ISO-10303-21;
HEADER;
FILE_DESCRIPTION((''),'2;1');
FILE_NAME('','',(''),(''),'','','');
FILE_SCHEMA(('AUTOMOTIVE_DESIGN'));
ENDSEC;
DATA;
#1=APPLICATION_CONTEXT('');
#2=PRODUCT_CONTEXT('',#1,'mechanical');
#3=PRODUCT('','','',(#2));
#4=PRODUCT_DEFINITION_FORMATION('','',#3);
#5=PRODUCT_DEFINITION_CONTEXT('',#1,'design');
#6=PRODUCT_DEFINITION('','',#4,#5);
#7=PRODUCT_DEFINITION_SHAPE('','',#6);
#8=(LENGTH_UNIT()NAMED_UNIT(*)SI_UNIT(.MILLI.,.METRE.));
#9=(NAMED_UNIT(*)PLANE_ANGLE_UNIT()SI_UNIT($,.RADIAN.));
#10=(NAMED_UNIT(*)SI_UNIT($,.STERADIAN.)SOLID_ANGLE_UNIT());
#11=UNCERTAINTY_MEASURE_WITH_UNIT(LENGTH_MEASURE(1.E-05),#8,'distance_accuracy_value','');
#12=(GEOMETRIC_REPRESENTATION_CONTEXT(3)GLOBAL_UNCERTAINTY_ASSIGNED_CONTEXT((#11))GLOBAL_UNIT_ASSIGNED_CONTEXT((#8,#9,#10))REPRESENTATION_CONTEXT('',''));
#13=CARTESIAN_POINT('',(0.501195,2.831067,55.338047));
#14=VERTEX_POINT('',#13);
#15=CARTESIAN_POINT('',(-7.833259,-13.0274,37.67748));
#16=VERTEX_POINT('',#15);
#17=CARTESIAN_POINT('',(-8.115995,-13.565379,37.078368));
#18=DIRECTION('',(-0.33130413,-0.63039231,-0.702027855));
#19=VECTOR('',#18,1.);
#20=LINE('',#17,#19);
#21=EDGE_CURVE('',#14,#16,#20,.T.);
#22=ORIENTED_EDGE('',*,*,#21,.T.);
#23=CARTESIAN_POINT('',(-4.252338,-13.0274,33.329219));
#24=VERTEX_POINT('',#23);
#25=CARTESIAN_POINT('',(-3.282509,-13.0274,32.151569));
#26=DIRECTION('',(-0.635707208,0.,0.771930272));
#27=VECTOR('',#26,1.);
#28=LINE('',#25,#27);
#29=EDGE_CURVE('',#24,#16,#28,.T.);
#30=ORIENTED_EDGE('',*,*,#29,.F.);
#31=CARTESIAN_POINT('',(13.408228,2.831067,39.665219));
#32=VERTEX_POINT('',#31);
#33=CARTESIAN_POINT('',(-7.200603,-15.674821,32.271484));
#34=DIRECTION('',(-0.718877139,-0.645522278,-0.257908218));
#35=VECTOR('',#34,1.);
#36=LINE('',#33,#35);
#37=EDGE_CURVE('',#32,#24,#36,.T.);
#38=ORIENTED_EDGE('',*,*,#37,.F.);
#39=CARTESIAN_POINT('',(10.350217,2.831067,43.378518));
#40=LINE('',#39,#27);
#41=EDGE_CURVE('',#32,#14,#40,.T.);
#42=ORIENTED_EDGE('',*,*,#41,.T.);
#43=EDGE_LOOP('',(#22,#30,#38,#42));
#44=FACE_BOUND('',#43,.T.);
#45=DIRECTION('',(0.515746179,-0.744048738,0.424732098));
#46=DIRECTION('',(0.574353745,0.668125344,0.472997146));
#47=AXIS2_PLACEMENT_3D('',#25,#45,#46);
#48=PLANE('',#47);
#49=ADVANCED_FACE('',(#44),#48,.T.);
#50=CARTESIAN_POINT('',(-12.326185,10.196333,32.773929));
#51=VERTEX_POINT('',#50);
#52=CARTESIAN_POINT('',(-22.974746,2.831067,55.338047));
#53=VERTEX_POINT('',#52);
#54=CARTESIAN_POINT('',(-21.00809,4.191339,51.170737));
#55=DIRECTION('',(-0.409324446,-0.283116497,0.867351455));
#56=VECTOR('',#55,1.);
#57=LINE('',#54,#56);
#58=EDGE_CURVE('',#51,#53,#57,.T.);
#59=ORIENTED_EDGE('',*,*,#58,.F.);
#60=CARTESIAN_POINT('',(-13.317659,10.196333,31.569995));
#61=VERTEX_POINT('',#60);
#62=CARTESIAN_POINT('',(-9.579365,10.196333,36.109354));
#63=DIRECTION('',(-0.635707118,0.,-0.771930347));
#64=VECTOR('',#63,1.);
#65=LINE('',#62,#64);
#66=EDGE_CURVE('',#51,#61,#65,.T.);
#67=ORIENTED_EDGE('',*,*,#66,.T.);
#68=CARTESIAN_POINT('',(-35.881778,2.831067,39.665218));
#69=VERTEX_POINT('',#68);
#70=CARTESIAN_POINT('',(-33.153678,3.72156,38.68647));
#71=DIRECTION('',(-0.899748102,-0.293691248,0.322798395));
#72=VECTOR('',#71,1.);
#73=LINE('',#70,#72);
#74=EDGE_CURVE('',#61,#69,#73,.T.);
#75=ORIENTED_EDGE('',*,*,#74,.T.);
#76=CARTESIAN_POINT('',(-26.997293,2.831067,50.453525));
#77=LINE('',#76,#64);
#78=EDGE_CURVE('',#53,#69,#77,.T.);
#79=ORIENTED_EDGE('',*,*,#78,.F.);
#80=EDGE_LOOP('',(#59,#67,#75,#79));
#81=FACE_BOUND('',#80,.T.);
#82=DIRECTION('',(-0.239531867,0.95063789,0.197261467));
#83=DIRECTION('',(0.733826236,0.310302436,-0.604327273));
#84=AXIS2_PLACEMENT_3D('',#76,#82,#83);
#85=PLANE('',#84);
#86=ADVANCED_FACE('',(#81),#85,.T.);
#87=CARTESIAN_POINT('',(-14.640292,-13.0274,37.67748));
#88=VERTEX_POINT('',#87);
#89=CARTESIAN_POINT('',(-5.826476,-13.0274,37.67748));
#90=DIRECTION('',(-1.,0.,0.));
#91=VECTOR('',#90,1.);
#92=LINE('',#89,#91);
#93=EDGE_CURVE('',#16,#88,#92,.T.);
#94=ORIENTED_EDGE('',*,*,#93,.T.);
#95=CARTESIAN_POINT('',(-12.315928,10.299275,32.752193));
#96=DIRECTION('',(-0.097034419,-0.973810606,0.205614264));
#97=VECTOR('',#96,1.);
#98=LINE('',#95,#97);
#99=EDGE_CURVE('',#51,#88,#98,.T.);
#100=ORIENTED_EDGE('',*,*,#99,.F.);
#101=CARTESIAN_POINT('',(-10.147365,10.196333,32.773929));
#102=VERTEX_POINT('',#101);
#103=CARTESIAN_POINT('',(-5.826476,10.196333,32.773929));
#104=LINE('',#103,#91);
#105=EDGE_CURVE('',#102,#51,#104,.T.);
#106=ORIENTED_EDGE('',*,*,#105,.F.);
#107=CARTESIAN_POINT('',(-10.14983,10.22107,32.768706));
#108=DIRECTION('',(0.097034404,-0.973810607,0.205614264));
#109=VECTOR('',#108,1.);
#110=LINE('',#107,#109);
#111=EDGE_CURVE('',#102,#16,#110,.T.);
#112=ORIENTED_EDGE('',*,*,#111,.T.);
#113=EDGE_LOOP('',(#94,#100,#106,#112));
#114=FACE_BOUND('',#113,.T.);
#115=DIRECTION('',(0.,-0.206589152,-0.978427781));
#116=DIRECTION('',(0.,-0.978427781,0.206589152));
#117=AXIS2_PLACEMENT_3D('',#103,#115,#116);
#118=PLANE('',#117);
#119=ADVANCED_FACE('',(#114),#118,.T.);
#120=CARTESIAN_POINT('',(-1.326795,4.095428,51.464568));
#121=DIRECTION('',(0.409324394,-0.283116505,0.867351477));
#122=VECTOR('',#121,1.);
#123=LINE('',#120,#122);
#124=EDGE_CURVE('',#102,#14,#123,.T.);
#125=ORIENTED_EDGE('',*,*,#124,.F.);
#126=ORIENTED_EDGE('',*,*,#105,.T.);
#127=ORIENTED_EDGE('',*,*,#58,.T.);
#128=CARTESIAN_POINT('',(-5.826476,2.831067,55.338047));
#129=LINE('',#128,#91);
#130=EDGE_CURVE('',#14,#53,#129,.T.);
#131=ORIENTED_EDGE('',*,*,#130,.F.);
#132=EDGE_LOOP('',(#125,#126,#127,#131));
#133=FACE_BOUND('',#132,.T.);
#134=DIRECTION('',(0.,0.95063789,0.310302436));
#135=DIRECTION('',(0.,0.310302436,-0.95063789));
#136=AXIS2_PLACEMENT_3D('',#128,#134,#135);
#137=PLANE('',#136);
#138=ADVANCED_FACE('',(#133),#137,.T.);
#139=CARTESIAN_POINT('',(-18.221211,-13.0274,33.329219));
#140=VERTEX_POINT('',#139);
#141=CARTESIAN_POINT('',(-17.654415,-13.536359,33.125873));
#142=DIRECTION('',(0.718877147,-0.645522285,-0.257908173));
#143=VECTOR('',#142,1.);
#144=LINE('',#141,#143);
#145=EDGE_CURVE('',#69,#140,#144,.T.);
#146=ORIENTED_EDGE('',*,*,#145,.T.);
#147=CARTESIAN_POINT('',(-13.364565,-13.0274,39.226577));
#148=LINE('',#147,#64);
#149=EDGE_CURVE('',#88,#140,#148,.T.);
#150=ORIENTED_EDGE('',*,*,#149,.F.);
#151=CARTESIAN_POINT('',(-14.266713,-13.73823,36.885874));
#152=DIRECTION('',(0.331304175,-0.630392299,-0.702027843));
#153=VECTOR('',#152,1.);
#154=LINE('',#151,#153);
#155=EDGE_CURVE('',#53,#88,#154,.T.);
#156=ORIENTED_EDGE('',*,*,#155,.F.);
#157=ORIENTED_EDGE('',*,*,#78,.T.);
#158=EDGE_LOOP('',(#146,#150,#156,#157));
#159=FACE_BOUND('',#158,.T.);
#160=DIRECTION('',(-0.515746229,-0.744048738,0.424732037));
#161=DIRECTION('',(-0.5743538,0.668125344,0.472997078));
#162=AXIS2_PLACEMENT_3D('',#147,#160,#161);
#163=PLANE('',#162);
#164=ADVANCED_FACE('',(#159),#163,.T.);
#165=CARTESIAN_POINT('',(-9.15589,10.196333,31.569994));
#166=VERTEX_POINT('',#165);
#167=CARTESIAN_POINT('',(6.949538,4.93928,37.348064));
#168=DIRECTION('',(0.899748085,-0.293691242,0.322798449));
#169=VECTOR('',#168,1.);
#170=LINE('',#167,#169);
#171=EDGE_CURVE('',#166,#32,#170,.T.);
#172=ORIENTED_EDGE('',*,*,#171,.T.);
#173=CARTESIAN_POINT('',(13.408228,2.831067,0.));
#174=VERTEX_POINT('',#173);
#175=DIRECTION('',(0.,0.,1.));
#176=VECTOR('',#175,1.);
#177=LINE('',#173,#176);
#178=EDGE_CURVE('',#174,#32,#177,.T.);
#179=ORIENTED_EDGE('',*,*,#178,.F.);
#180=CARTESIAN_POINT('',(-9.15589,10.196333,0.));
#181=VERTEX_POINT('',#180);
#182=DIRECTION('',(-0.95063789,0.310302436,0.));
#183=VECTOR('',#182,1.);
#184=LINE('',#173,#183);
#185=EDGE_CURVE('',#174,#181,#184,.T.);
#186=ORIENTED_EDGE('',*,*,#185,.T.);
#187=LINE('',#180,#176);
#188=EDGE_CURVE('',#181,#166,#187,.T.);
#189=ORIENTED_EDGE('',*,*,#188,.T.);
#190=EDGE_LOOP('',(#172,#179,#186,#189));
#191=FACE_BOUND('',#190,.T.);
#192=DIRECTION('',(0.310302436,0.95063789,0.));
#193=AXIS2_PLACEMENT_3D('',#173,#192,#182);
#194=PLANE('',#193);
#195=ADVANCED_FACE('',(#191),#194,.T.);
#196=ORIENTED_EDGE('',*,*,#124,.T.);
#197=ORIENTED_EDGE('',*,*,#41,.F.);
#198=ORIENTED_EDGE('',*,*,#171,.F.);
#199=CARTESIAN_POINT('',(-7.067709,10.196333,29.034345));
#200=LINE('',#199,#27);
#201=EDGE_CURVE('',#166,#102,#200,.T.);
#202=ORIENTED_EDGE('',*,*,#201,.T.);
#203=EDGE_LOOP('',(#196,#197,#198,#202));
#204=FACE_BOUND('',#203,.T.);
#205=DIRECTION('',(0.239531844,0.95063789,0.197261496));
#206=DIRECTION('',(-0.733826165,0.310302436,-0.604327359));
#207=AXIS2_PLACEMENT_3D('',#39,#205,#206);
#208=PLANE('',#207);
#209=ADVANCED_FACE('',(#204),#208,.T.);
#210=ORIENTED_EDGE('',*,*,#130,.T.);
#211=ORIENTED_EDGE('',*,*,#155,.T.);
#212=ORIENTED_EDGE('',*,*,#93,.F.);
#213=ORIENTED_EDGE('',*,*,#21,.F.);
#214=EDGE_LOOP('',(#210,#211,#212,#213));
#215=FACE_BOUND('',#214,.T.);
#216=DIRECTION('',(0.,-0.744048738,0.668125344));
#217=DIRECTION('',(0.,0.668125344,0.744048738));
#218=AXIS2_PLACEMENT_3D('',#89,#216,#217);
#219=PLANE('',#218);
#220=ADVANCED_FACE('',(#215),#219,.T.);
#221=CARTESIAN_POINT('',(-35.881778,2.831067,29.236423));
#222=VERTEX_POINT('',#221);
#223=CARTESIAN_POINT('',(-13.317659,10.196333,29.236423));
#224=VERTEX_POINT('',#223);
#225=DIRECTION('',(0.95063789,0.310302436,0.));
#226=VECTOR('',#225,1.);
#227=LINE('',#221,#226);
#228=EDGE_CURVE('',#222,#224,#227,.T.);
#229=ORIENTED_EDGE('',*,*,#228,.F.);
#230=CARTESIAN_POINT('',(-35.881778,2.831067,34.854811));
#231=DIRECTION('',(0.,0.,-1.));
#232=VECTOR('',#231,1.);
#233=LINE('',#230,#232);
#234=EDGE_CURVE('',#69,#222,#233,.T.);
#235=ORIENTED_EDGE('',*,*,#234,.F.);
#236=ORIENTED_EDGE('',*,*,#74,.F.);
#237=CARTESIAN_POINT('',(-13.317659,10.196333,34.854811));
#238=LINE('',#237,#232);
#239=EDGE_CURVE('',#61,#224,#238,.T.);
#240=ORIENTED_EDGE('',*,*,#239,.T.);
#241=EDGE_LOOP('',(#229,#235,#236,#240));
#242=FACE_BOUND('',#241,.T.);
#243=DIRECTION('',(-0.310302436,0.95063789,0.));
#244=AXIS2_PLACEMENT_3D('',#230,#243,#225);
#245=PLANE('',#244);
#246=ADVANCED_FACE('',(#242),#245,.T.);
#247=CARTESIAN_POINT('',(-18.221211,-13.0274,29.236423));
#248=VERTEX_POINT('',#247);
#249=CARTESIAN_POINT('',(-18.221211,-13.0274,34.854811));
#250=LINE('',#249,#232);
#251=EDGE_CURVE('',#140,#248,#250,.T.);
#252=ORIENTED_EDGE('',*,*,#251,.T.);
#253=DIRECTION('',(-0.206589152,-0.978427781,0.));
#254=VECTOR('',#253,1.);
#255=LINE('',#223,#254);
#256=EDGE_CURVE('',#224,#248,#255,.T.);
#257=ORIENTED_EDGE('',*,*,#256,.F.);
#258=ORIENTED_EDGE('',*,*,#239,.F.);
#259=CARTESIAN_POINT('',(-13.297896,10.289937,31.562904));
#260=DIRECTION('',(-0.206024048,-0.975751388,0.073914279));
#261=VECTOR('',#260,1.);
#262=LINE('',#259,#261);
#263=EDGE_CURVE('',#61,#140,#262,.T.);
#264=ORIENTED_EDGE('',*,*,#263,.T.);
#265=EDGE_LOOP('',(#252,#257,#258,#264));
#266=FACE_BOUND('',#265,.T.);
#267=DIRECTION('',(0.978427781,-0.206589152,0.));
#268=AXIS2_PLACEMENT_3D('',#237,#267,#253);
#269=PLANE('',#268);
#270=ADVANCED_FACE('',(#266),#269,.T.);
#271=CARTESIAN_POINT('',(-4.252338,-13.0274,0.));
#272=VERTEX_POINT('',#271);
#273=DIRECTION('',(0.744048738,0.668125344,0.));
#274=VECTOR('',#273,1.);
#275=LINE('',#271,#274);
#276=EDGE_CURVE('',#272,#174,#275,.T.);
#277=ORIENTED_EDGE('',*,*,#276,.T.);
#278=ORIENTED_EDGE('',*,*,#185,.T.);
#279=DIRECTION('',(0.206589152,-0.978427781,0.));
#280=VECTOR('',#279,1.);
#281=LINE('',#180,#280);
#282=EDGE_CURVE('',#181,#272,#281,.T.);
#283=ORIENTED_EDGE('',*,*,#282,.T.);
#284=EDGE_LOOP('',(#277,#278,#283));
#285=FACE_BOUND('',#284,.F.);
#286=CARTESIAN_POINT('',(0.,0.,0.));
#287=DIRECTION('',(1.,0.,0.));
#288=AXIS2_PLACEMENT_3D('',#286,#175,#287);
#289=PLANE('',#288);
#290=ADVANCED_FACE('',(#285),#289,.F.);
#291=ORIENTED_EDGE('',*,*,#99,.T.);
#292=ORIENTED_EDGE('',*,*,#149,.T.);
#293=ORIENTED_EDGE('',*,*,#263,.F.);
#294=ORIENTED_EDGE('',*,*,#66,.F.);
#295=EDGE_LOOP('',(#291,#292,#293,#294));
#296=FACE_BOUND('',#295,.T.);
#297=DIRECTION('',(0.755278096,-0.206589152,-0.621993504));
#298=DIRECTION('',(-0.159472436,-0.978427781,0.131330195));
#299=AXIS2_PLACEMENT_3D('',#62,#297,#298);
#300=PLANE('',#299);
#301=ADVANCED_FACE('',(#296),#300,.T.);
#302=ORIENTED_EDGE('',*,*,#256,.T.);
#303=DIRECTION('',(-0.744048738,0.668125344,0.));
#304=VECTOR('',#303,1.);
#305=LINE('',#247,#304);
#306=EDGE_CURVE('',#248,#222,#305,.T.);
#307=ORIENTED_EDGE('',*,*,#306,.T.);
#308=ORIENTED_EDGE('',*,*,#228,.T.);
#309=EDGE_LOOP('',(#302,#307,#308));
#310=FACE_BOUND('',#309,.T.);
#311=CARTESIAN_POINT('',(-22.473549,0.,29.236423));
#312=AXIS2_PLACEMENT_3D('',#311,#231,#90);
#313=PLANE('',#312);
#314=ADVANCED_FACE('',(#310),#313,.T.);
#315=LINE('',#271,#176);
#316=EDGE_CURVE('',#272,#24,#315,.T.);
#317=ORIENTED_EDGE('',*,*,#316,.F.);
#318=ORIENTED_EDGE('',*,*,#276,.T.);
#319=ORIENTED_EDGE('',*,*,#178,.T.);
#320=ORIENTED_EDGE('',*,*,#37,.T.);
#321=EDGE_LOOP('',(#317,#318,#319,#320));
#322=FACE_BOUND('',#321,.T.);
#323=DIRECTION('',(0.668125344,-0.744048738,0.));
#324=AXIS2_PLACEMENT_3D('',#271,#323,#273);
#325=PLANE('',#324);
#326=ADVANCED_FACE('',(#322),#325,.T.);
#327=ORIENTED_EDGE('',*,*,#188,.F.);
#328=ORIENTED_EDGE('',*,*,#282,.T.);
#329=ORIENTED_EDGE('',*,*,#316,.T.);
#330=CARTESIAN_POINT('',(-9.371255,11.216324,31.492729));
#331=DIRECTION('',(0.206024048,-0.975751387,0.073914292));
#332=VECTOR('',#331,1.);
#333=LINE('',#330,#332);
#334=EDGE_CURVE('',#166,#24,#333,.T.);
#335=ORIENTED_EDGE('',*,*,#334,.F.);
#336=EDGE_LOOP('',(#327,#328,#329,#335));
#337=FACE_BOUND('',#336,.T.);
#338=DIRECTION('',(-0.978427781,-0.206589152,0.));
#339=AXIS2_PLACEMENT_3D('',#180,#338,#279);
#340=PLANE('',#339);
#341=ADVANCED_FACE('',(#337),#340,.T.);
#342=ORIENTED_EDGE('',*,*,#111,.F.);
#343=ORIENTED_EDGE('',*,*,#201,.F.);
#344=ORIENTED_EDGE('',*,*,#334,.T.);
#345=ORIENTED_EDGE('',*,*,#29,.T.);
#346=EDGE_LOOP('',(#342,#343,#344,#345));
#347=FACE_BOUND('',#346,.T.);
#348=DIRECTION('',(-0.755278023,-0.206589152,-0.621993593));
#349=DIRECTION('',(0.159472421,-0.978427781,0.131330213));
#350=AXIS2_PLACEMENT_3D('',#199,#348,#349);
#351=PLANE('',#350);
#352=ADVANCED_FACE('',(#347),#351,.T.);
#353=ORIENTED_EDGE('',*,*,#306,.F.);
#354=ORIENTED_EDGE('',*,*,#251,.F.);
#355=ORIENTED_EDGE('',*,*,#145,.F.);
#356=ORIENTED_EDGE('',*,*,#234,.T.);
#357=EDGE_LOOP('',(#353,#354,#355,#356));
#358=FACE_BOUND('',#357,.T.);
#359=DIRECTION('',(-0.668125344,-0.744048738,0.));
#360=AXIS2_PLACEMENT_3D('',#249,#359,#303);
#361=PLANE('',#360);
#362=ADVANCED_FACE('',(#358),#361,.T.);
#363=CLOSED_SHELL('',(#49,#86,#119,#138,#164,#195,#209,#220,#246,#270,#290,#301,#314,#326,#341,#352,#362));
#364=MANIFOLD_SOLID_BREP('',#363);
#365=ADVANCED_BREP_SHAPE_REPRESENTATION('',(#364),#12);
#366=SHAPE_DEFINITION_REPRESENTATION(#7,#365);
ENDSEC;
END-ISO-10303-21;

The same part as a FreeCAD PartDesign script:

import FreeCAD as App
import Part
import Sketcher
Q = App.Units.Quantity

doc = App.newDocument("Part")
body = doc.addObject("PartDesign::Body", "Body")

# Sketch on XY plane
sketch1 = body.newObject("Sketcher::SketchObject", "Sketch")
sketch1.AttachmentSupport = (doc.getObject("XY_Plane"), [""])
sketch1.MapMode = "FlatFace"
sketch1.addGeometry([
    Part.LineSegment(App.Vector(-4.252338, -13.0274, 0), App.Vector(13.408228, 2.831067, 0)),
    Part.LineSegment(App.Vector(13.408228, 2.831067, 0), App.Vector(-9.15589, 10.196333, 0)),
    Part.LineSegment(App.Vector(-9.15589, 10.196333, 0), App.Vector(-4.252338, -13.0274, 0)),
], False)
sketch1.addConstraint([
    Sketcher.Constraint("Coincident", 0, 2, 1, 1),
    Sketcher.Constraint("Coincident", 1, 2, 2, 1),
    Sketcher.Constraint("Coincident", 2, 2, 0, 1),
    Sketcher.Constraint("Equal", 0, 1),
    Sketcher.Constraint("Equal", 1, 2),
    Sketcher.Constraint("DistanceY", 2, 2, -1, 1, Q("13.0274 mm")),
    Sketcher.Constraint("DistanceX", -1, 1, 0, 2, Q("13.408228 mm")),
    Sketcher.Constraint("DistanceX", 1, 2, -1, 1, Q("9.15589 mm")),
    Sketcher.Constraint("DistanceX", 2, 2, -1, 1, Q("4.252338 mm")),
])

# Sketch on XZ plane
sketch2 = body.newObject("Sketcher::SketchObject", "Sketch001")
sketch2.AttachmentSupport = (doc.getObject("XZ_Plane"), [""])
sketch2.MapMode = "FlatFace"
sketch2.addGeometry([
    Part.LineSegment(App.Vector(0, 0, 0), App.Vector(0, 34.854811, 0)),  # 0
    Part.LineSegment(App.Vector(0, 34.854811, 0), App.Vector(-5.826476, 41.929819, 0)),  # 1
    Part.LineSegment(App.Vector(-5.826476, 41.929819, 0), App.Vector(-16.647074, 41.929819, 0)),  # 2
    Part.LineSegment(App.Vector(-16.647074, 41.929819, 0), App.Vector(-22.473549, 34.854811, 0)),  # 3
    Part.LineSegment(App.Vector(-22.473549, 34.854811, 0), App.Vector(-22.473549, 29.236423, 0)),  # 4
], False)
sketch2.addConstraint([
    Sketcher.Constraint("Coincident", 0, 2, 1, 1),
    Sketcher.Constraint("Coincident", 1, 2, 2, 1),
    Sketcher.Constraint("Coincident", 2, 2, 3, 1),
    Sketcher.Constraint("Coincident", 3, 2, 4, 1),
    Sketcher.Constraint("Vertical", 0),
    Sketcher.Constraint("Horizontal", 2),
    Sketcher.Constraint("Vertical", 4),
    Sketcher.Constraint("Coincident", 0, 1, -1, 1),
    Sketcher.Constraint("Horizontal", 0, 2, 3, 2),
    Sketcher.Constraint("Equal", 1, 3),
    Sketcher.Constraint("DistanceY", 0, 1, 0, 2, Q("34.854811 mm")),
    Sketcher.Constraint("DistanceX", 2, 2, 2, 1, Q("10.820598 mm")),
    Sketcher.Constraint("DistanceY", 4, 2, 4, 1, Q("5.618388 mm")),
    Sketcher.Constraint("DistanceY", -1, 1, 1, 2, Q("41.929819 mm")),
    Sketcher.Constraint("DistanceX", 3, 2, -1, 1, Q("22.473549 mm")),
])
doc.recompute()

additivepipe = body.newObject("PartDesign::AdditivePipe", "AdditivePipe")
additivepipe.Profile = sketch1
additivepipe.Spine = (sketch2, ["Edge1", "Edge2", "Edge3", "Edge4", "Edge5"])
additivepipe.Transition = "Right corner"

doc.recompute()
